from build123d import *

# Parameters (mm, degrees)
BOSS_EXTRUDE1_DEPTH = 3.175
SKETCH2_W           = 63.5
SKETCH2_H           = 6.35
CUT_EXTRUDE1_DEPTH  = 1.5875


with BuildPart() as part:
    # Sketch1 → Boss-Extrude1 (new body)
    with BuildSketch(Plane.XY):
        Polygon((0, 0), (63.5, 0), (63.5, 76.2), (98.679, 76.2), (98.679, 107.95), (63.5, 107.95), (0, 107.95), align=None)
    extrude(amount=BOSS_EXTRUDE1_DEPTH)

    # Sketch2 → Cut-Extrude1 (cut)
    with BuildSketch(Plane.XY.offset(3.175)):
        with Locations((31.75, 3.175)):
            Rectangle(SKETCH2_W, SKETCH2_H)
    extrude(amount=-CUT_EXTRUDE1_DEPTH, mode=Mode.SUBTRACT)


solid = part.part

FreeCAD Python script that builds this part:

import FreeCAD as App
import Part
import Sketcher

V = App.Vector
Q = App.Units.Quantity

doc = App.newDocument("Part")
params = doc.addObject("Spreadsheet::Sheet", "Params")
for row, (alias, value) in enumerate([
    ("sketch1_height", "3 in"),
    ("sketch1_width", "2.5 in"),
    ("sketch1_height2", "1.25 in"),
    ("sketch1_width2", "1.385 in"),
    ("pad1_length", "0.125 in"),
    ("sketch2_width", "2.5 in"),
    ("sketch2_height", "0.25 in"),
    ("pocket1_length", "0.0625 in"),
], start=1):
    params.set(f"A{row}", alias)
    params.set(f"B{row}", "=" + value)
    params.setAlias(f"B{row}", alias)

body = doc.addObject("PartDesign::Body", "Body")

sketch1 = body.newObject("Sketcher::SketchObject", "Sketch")
sketch1.AttachmentSupport = (doc.getObject("XY_Plane"), [""])
sketch1.MapMode = "FlatFace"
sketch1.addGeometry([
    Part.LineSegment(V(0, 0, 0), V(64, 0, 0)),
    Part.LineSegment(V(64, 0, 0), V(64, 76, 0)),
    Part.LineSegment(V(64, 76, 0), V(99, 76, 0)),
    Part.LineSegment(V(99, 76, 0), V(99, 108, 0)),
    Part.LineSegment(V(99, 108, 0), V(0, 108, 0)),
    Part.LineSegment(V(0, 108, 0), V(0, 0, 0)),
], False)
sketch1.addConstraint([
    Sketcher.Constraint("Coincident", 0, 2, 1, 1),
    Sketcher.Constraint("Coincident", 1, 2, 2, 1),
    Sketcher.Constraint("Coincident", 2, 2, 3, 1),
    Sketcher.Constraint("Coincident", 3, 2, 4, 1),
    Sketcher.Constraint("Coincident", 4, 2, 5, 1),
    Sketcher.Constraint("Coincident", 5, 2, 0, 1),
    Sketcher.Constraint("Horizontal", 0),
    Sketcher.Constraint("Vertical", 1),
    Sketcher.Constraint("Horizontal", 2),
    Sketcher.Constraint("Vertical", 3),
    Sketcher.Constraint("Horizontal", 4),
    Sketcher.Constraint("Vertical", 5),
    Sketcher.Constraint("Coincident", 5, 2, -1, 1),
    Sketcher.Constraint("DistanceY", 1, 1, 1, 2, Q("3 in")),
    Sketcher.Constraint("DistanceX", 0, 1, 0, 2, Q("2.5 in")),
    Sketcher.Constraint("DistanceY", 3, 1, 3, 2, Q("1.25 in")),
    Sketcher.Constraint("DistanceX", 2, 1, 2, 2, Q("1.385 in")),
])
sketch1.setExpression("Constraints[13]", "Params.sketch1_height")
sketch1.setExpression("Constraints[14]", "Params.sketch1_width")
sketch1.setExpression("Constraints[15]", "Params.sketch1_height2")
sketch1.setExpression("Constraints[16]", "Params.sketch1_width2")
pad1 = body.newObject("PartDesign::Pad", "Pad")
pad1.Profile = sketch1
pad1.setExpression("Length", "Params.pad1_length")

sketch2 = body.newObject("Sketcher::SketchObject", "Sketch001")
sketch2.AttachmentSupport = (doc.getObject("XY_Plane"), [""])
sketch2.MapMode = "FlatFace"
sketch2.AttachmentOffset = App.Placement(V(0, 0, 0.125 * 25.4), App.Rotation())
sketch2.addGeometry([
    Part.LineSegment(V(0, 6, 0), V(0, 0, 0)),
    Part.LineSegment(V(0, 0, 0), V(64, 0, 0)),
    Part.LineSegment(V(64, 0, 0), V(64, 6, 0)),
    Part.LineSegment(V(64, 6, 0), V(0, 6, 0)),
], False)
sketch2.addConstraint([
    Sketcher.Constraint("Coincident", 0, 2, 1, 1),
    Sketcher.Constraint("Coincident", 1, 2, 2, 1),
    Sketcher.Constraint("Coincident", 2, 2, 3, 1),
    Sketcher.Constraint("Coincident", 3, 2, 0, 1),
    Sketcher.Constraint("Vertical", 0),
    Sketcher.Constraint("Horizontal", 1),
    Sketcher.Constraint("Vertical", 2),
    Sketcher.Constraint("Horizontal", 3),
    Sketcher.Constraint("Coincident", 0, 2, -1, 1),
    Sketcher.Constraint("DistanceX", 1, 1, 1, 2, Q("2.5 in")),
    Sketcher.Constraint("DistanceY", 0, 2, 0, 1, Q("0.25 in")),
])
sketch2.setExpression("Constraints[9]", "Params.sketch2_width")
sketch2.setExpression("Constraints[10]", "Params.sketch2_height")
pocket1 = body.newObject("PartDesign::Pocket", "Pocket")
pocket1.Profile = sketch2
pocket1.setExpression("Length", "Params.pocket1_length")

doc.recompute()
